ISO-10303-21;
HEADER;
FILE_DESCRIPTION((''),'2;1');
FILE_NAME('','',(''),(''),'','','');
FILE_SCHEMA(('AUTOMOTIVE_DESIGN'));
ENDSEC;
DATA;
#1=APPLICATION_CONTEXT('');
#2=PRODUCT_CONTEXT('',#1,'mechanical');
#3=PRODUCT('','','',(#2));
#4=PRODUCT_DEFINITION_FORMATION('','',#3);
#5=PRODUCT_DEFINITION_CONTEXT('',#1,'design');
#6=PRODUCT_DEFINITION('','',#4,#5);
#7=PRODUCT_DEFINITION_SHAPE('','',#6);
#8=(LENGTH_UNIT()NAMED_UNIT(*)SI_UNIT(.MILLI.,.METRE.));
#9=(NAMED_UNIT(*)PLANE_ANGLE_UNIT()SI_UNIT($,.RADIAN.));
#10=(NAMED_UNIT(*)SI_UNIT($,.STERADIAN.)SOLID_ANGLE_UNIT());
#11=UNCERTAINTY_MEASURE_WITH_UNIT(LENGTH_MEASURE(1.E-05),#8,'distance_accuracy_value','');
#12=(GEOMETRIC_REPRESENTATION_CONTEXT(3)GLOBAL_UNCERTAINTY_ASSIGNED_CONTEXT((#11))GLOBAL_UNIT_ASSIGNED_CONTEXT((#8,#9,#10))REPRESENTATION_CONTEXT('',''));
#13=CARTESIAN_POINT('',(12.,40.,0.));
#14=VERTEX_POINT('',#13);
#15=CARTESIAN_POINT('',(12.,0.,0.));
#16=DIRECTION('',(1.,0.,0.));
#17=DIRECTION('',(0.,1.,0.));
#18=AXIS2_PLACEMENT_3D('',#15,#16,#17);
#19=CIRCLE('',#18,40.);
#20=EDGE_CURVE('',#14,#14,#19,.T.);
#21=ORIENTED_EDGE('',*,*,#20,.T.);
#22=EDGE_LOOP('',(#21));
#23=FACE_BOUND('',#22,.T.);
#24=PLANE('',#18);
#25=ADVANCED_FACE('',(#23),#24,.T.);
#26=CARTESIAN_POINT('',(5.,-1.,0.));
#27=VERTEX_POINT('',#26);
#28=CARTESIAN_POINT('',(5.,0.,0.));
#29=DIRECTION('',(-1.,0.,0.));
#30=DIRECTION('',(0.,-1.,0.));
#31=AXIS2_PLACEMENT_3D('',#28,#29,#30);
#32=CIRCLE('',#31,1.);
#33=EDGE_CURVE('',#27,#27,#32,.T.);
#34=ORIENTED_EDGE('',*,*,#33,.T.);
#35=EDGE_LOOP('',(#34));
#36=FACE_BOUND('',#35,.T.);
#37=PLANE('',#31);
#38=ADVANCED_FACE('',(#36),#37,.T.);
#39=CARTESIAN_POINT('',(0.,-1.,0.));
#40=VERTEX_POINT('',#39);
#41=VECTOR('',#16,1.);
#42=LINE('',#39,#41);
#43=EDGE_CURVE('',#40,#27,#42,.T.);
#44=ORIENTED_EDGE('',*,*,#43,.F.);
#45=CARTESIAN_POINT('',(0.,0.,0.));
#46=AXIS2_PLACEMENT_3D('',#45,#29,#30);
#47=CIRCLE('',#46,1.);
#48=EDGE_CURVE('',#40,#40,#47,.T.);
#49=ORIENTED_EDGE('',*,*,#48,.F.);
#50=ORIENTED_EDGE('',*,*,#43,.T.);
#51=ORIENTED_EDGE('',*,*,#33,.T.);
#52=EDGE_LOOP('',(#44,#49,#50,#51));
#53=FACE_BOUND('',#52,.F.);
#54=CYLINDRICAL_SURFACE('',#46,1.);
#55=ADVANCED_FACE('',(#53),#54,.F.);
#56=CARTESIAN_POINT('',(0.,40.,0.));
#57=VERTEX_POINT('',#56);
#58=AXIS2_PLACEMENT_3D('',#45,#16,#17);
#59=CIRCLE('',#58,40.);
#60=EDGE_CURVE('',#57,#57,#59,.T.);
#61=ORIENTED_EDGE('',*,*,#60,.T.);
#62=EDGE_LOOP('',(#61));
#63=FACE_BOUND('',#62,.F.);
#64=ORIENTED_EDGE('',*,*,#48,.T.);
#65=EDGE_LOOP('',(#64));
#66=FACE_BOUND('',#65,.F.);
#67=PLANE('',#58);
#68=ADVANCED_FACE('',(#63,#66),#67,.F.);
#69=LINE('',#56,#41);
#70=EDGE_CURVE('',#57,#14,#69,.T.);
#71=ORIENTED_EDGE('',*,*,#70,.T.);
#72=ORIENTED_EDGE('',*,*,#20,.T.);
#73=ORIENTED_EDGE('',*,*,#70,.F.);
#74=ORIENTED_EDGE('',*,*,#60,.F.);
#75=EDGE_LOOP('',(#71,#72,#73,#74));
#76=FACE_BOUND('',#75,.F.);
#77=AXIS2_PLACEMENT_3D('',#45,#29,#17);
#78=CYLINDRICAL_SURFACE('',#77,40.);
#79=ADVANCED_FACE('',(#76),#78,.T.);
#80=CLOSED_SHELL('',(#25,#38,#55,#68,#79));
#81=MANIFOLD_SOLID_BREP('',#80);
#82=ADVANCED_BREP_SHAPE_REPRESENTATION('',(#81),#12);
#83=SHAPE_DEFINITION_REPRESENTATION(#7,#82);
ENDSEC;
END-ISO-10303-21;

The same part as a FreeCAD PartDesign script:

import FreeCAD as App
import Part
import Sketcher
from FreeCAD import Vector
Q = App.Units.Quantity

doc = App.newDocument("Part")
body = doc.addObject("PartDesign::Body", "Body")

sketch1 = doc.addObject("Sketcher::SketchObject", "Sketch")
body.addObject(sketch1)
sketch1.AttachmentSupport = (doc.YZ_Plane, [""])
sketch1.MapMode = "FlatFace"
sketch1.addGeometry(Part.Circle(Vector(0, 0, 0), Vector(0, 0, 1), 40), False)
sketch1.addConstraint([
    Sketcher.Constraint("Coincident", 0, 3, -1, 1),
    Sketcher.Constraint("Diameter", 0, Q("80 mm")),
])
pad1 = doc.addObject("PartDesign::Pad", "Pad")
body.addObject(pad1)
pad1.Profile = sketch1
pad1.Length = 12

sketch2 = doc.addObject("Sketcher::SketchObject", "Sketch001")
body.addObject(sketch2)
sketch2.AttachmentSupport = (doc.YZ_Plane, [""])
sketch2.MapMode = "FlatFace"
sketch2.addGeometry(Part.Circle(Vector(0, 0, 0), Vector(0, 0, 1), 1), False)
sketch2.addConstraint([
    Sketcher.Constraint("Coincident", 0, 3, -1, 1),
    Sketcher.Constraint("Diameter", 0, Q("2 mm")),
])
pocket1 = doc.addObject("PartDesign::Pocket", "Pocket")
body.addObject(pocket1)
pocket1.Profile = sketch2
pocket1.Length = 5
pocket1.Reversed = True

doc.recompute()
